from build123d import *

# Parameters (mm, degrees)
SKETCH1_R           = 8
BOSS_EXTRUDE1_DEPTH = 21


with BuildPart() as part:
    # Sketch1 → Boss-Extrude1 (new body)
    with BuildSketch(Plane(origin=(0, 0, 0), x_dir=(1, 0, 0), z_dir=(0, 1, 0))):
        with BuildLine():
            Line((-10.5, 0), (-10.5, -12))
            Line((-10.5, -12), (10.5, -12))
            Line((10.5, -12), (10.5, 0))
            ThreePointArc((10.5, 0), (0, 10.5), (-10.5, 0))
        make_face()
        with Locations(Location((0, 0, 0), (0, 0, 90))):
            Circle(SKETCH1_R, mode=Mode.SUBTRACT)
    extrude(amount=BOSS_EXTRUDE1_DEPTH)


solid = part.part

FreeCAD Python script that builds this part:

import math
import FreeCAD as App
import Part
import Sketcher
from FreeCAD import Vector
Q = App.Units.Quantity

doc = App.newDocument("Part")
params = doc.addObject("Spreadsheet::Sheet", "Params")
for row, (alias, value) in enumerate([
    ("sketch1_diameter", "16 mm"),
    ("sketch1_radius", "10.5 mm"),
    ("sketch1_height", "12 mm"),
    ("pad1_length", "21 mm"),
], start=1):
    params.set(f"A{row}", alias)
    params.set(f"B{row}", "=" + value)
    params.setAlias(f"B{row}", alias)

body = doc.addObject("PartDesign::Body", "Body")

# Sketch on XZ plane
sketch1 = body.newObject("Sketcher::SketchObject", "Sketch")
sketch1.AttachmentSupport = (doc.getObject("XZ_Plane"), [""])
sketch1.MapMode = "FlatFace"
sketch1.addGeometry(Part.LineSegment(Vector(-10.5, 0, 0), Vector(-10.5, 12, 0)), False)
sketch1.addGeometry(Part.LineSegment(Vector(-10.5, 12, 0), Vector(10.5, 12, 0)), False)
sketch1.addGeometry(Part.LineSegment(Vector(10.5, 12, 0), Vector(10.5, 0, 0)), False)
sketch1.addGeometry(Part.ArcOfCircle(Part.Circle(Vector(0, 0, 0), Vector(0, 0, 1), 10.5), math.radians(180), math.radians(360)), False)
sketch1.addGeometry(Part.Circle(Vector(0, 0, 0), Vector(0, 0, 1), 8), False)
sketch1.addConstraint(Sketcher.Constraint("Coincident", 0, 2, 1, 1))
sketch1.addConstraint(Sketcher.Constraint("Coincident", 1, 2, 2, 1))
sketch1.addConstraint(Sketcher.Constraint("Tangent", 2, 2, 3, 2))
sketch1.addConstraint(Sketcher.Constraint("Tangent", 3, 1, 0, 1))
sketch1.addConstraint(Sketcher.Constraint("Vertical", 0))
sketch1.addConstraint(Sketcher.Constraint("Horizontal", 1))
sketch1.addConstraint(Sketcher.Constraint("Vertical", 2))
sketch1.addConstraint(Sketcher.Constraint("Coincident", 3, 3, -1, 1))
sketch1.addConstraint(Sketcher.Constraint("Coincident", 4, 3, -1, 1))
sketch1.addConstraint(Sketcher.Constraint("Diameter", 4, Q("16 mm")))
sketch1.addConstraint(Sketcher.Constraint("Radius", 3, Q("10.5 mm")))
sketch1.addConstraint(Sketcher.Constraint("DistanceY", 0, 1, 0, 2, Q("12 mm")))
sketch1.setExpression("Constraints[9]", "Params.sketch1_diameter")
sketch1.setExpression("Constraints[10]", "Params.sketch1_radius")
sketch1.setExpression("Constraints[11]", "Params.sketch1_height")
pad1 = body.newObject("PartDesign::Pad", "Pad")
pad1.Profile = sketch1
pad1.setExpression("Length", "Params.pad1_length")
pad1.Reversed = True

doc.recompute()
